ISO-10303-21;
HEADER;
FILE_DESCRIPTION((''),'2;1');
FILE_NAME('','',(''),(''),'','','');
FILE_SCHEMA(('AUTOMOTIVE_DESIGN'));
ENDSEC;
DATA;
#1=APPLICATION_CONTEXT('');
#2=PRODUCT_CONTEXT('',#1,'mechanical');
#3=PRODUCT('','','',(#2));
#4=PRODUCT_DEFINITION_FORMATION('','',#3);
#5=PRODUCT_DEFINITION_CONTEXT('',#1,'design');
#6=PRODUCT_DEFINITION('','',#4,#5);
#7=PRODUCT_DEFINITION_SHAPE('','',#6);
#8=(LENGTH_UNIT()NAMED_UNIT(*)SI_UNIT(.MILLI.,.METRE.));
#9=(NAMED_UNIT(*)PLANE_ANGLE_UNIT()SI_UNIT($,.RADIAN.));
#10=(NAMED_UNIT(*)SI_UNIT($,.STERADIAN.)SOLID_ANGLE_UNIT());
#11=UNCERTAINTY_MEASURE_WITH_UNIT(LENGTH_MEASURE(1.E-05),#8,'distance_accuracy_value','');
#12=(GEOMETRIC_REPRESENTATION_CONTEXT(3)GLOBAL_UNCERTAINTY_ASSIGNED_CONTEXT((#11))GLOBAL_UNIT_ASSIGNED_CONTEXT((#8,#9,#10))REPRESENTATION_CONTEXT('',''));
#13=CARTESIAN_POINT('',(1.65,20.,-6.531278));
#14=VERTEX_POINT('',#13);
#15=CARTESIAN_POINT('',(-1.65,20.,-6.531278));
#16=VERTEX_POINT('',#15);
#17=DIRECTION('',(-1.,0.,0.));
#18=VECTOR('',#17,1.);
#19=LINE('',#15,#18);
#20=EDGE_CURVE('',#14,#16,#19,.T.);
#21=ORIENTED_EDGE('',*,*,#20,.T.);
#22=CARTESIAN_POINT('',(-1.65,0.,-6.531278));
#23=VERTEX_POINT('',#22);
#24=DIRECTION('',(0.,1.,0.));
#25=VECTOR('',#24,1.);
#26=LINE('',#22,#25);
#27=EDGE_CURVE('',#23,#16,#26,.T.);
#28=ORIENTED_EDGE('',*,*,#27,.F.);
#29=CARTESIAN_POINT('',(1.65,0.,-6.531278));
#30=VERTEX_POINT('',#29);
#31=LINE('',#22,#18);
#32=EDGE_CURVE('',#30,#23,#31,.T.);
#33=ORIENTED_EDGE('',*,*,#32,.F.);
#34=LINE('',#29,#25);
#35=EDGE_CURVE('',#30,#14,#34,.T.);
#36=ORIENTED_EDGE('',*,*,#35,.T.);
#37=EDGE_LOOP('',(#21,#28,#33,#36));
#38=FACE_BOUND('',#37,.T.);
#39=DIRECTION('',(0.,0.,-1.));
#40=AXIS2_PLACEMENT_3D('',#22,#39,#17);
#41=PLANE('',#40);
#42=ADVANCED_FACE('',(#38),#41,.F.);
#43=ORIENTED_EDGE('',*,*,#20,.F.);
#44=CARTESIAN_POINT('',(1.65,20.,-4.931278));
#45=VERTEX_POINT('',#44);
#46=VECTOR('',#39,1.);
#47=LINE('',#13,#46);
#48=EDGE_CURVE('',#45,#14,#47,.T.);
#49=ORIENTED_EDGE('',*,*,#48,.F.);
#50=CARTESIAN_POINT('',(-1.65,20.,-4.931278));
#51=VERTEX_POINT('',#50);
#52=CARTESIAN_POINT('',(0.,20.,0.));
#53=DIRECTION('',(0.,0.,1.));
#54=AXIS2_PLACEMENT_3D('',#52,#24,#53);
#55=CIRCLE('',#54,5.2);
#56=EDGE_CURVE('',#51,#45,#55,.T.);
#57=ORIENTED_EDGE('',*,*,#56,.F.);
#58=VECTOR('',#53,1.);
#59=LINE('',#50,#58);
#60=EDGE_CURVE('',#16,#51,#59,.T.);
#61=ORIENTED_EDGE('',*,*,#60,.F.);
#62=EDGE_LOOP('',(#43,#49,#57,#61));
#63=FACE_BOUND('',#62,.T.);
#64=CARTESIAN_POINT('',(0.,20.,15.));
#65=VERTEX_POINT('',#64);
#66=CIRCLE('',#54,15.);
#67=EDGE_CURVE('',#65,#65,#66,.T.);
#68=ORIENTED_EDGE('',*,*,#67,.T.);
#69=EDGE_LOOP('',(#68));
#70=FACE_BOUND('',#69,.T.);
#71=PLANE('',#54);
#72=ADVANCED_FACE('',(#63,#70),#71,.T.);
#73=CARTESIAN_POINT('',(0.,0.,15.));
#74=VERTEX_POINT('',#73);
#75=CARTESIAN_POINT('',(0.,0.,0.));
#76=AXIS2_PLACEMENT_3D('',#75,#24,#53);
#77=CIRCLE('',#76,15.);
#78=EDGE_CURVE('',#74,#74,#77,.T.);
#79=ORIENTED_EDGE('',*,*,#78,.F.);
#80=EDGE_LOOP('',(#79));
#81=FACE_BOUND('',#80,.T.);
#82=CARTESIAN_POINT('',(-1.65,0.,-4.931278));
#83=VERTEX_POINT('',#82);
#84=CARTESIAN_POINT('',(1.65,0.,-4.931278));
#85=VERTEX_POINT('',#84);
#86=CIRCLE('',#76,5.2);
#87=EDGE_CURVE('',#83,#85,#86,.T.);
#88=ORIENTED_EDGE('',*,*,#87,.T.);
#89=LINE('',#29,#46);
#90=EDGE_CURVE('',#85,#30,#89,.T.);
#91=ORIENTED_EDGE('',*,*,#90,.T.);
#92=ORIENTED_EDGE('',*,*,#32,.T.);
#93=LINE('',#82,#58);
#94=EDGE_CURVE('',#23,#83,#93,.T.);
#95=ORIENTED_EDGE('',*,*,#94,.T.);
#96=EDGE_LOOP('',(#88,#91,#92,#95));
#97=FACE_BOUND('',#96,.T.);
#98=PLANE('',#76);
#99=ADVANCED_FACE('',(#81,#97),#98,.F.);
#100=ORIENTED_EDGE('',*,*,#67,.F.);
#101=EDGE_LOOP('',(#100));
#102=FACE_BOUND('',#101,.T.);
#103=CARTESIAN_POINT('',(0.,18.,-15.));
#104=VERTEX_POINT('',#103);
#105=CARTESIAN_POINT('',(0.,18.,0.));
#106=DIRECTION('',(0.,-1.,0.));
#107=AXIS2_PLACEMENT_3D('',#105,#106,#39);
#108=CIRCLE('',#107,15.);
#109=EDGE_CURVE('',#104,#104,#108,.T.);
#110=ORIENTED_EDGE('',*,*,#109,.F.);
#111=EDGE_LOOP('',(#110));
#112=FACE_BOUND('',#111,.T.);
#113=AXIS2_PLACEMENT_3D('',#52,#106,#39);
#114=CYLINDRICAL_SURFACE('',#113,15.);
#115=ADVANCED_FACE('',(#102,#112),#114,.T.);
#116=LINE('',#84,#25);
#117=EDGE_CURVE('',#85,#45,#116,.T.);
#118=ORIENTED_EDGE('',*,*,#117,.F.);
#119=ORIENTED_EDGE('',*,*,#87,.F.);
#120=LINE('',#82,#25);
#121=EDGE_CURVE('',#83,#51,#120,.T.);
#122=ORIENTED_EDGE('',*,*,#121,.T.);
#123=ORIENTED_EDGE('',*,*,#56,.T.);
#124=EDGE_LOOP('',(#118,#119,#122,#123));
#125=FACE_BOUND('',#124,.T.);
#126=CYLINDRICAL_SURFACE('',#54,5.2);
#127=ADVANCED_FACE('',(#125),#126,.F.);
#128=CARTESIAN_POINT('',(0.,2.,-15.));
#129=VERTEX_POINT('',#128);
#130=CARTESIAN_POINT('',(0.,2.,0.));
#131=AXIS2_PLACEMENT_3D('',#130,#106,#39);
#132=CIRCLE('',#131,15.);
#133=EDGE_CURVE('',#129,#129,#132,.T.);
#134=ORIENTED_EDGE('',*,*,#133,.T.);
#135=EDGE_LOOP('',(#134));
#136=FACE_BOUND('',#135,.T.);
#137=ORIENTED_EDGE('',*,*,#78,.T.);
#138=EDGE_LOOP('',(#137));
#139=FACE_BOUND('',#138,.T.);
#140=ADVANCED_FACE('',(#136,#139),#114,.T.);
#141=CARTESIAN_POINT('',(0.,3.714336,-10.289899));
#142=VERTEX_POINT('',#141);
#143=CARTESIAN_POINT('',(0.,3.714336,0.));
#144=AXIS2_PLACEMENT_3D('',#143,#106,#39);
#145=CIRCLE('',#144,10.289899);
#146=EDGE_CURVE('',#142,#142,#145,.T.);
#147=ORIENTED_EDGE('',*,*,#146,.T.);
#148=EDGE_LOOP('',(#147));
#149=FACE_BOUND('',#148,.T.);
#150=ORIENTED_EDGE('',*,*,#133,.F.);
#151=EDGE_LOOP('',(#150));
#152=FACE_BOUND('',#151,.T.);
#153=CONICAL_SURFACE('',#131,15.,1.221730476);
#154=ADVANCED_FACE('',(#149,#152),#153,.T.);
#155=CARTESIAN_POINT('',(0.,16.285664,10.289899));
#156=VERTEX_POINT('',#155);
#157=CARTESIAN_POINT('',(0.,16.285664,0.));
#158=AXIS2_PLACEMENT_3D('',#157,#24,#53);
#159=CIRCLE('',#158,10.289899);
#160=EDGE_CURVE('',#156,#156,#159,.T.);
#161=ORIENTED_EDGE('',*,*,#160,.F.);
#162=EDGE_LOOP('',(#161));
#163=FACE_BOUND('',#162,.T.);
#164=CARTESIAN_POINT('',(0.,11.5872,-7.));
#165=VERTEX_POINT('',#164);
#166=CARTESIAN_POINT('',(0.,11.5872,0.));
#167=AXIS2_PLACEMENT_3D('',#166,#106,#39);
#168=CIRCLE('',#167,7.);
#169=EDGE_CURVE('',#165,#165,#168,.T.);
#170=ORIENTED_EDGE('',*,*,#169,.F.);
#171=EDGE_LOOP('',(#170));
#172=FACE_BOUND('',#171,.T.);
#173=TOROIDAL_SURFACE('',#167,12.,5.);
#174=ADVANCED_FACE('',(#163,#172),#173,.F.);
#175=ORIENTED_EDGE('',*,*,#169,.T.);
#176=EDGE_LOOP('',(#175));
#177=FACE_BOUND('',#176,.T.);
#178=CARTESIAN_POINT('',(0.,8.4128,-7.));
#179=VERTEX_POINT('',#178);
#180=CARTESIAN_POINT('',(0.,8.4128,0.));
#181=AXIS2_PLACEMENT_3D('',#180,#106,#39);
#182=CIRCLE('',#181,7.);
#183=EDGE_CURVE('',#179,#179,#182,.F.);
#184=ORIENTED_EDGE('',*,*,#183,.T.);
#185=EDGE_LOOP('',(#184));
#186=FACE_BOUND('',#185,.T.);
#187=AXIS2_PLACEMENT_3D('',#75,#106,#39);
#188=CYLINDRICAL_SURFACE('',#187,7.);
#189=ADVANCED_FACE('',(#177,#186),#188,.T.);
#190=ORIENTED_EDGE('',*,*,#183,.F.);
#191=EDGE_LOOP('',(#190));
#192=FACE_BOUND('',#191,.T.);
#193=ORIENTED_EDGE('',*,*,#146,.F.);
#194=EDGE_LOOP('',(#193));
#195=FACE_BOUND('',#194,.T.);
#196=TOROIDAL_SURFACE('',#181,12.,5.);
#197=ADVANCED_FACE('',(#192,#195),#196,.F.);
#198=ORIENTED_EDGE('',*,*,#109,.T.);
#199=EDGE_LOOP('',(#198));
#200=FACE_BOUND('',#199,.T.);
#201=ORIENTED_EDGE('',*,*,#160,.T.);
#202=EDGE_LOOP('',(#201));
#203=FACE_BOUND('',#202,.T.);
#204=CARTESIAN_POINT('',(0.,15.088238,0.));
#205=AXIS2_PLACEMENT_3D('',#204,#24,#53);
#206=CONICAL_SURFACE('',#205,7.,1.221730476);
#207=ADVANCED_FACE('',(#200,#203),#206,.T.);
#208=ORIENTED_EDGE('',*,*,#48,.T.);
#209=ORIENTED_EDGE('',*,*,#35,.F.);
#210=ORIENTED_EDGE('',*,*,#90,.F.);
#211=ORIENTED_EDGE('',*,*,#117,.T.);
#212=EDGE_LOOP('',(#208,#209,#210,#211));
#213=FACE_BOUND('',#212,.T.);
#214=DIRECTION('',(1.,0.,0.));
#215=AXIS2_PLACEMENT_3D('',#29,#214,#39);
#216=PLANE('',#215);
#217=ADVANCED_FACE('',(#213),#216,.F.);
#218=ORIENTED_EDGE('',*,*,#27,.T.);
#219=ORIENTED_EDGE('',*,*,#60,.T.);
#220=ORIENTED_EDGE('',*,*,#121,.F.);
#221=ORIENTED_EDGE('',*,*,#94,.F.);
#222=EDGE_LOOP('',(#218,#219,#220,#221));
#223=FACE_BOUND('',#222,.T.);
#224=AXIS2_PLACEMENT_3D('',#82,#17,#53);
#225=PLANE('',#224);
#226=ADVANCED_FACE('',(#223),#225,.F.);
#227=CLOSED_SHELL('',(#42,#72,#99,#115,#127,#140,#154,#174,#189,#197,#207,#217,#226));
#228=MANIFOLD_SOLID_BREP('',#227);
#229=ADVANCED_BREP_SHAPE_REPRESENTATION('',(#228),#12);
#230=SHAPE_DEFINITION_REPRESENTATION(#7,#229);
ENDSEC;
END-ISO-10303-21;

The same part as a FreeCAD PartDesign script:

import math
import FreeCAD as App
import Part
import Sketcher
from FreeCAD import Vector
Q = App.Units.Quantity


def edges_at(feature, points):
    """Names of the edges that pass closest to the given points."""
    edges = feature.Shape.Edges
    near = lambda p: min(range(len(edges)), key=lambda i: edges[i].distToShape(Part.Vertex(*p))[0])
    return sorted({f"Edge{near(p) + 1}" for p in points})

doc = App.newDocument("Part")
body = doc.addObject("PartDesign::Body", "Body")

sketch1 = body.newObject("Sketcher::SketchObject", "Sketch")
sketch1.AttachmentSupport = (doc.getObject("XZ_Plane"), [""])
sketch1.MapMode = "FlatFace"
sketch1.addGeometry(Part.Circle(Vector(0, 0, 0), Vector(0, 0, 1), 15), False)
sketch1.addConstraint([
    Sketcher.Constraint("Coincident", 0, 3, -1, 1),
    Sketcher.Constraint("Diameter", 0, Q("30 mm")),
])
pad1 = body.newObject("PartDesign::Pad", "Pad")
pad1.Profile = sketch1
pad1.Length = 20
pad1.Reversed = True

sketch2 = body.newObject("Sketcher::SketchObject", "Sketch001")
sketch2.AttachmentSupport = (doc.getObject("XZ_Plane"), [""])
sketch2.MapMode = "FlatFace"
sketch2.AttachmentOffset = App.Placement(Vector(0, 0, -20), App.Rotation())
sketch2.addGeometry(Part.Circle(Vector(0, 0, 0), Vector(0, 0, 1), 5), False)
sketch2.addConstraint([
    Sketcher.Constraint("Coincident", 0, 3, -1, 1),
    Sketcher.Constraint("Diameter", 0, Q("10.4 mm")),
])
doc.recompute()
hole = body.newObject("PartDesign::Hole", "Hole")
hole.Profile = sketch2
hole.ThreadType = "None"
hole.Diameter = 10.4
hole.DepthType = "ThroughAll"
hole.Reversed = True

sketch3 = body.newObject("Sketcher::SketchObject", "Sketch002")
sketch3.AttachmentSupport = (doc.getObject("XZ_Plane"), [""])
sketch3.MapMode = "FlatFace"
sketch3.AttachmentOffset = App.Placement(Vector(0, 0, -20), App.Rotation())
sketch3.addGeometry([
    Part.LineSegment(Vector(-1.6, -6.5, 0), Vector(-1.6, -4.9, 0)),
    Part.ArcOfCircle(Part.Circle(Vector(0, 0.2, 0), Vector(0, 0, 1), 5.4), math.radians(-108), math.radians(-72)),
    Part.LineSegment(Vector(1.6, -4.9, 0), Vector(1.6, -6.5, 0)),
    Part.LineSegment(Vector(1.6, -6.5, 0), Vector(-1.6, -6.5, 0)),
], False)
sketch3.addConstraint([
    Sketcher.Constraint("Coincident", 0, 2, 1, 1),
    Sketcher.Constraint("Coincident", 1, 2, 2, 1),
    Sketcher.Constraint("Coincident", 2, 2, 3, 1),
    Sketcher.Constraint("Coincident", 3, 2, 0, 1),
    Sketcher.Constraint("Vertical", 0),
    Sketcher.Constraint("Vertical", 2),
    Sketcher.Constraint("Horizontal", 3),
    Sketcher.Constraint("Symmetric", 0, 2, 1, 2, -2),
    Sketcher.Constraint("Radius", 1, Q("5.4 mm")),
    Sketcher.Constraint("DistanceX", 3, 2, 3, 1, Q("3.3 mm")),
    Sketcher.Constraint("DistanceY", 0, 1, 0, 2, Q("1.6 mm")),
    Sketcher.Constraint("DistanceY", -1, 1, 1, 3, Q("0.210463 mm")),
])
pocket1 = body.newObject("PartDesign::Pocket", "Pocket")
pocket1.Profile = sketch3
pocket1.Type = "ThroughAll"
pocket1.Reversed = True

sketch4 = body.newObject("Sketcher::SketchObject", "Sketch003")
sketch4.AttachmentSupport = (doc.getObject("XY_Plane"), [""])
sketch4.MapMode = "FlatFace"
sketch4.addGeometry([
    Part.LineSegment(Vector(-15, 18, 0), Vector(-15, 2, 0)),
    Part.LineSegment(Vector(-15, 2, 0), Vector(-7, 5, 0)),
    Part.LineSegment(Vector(-7, 5, 0), Vector(-7, 15, 0)),
    Part.LineSegment(Vector(-7, 15, 0), Vector(-15, 18, 0)),
], False)
sketch4.addConstraint([
    Sketcher.Constraint("Coincident", 0, 2, 1, 1),
    Sketcher.Constraint("Coincident", 1, 2, 2, 1),
    Sketcher.Constraint("Coincident", 2, 2, 3, 1),
    Sketcher.Constraint("Coincident", 3, 2, 0, 1),
    Sketcher.Constraint("Vertical", 0),
    Sketcher.Constraint("Vertical", 2),
    Sketcher.Constraint("Equal", 1, 3),
    Sketcher.Constraint("DistanceY", 0, 2, 0, 1, Q("16 mm")),
    Sketcher.Constraint("Angle", 1, Q("20 deg")),
    Sketcher.Constraint("DistanceX", 0, 2, -1, 1, Q("15 mm")),
    Sketcher.Constraint("DistanceY", -1, 1, 0, 2, Q("2 mm")),
    Sketcher.Constraint("DistanceX", 1, 2, -1, 1, Q("7 mm")),
])
groove = body.newObject("PartDesign::Groove", "Groove")
groove.Profile = sketch4
groove.ReferenceAxis = (sketch4, ["V_Axis"])
groove.Angle = 360
doc.recompute()

fillet = body.newObject("PartDesign::Fillet", "Fillet")
fillet.Base = (groove, edges_at(groove, [(0, 15.088, 7), (0, 4.912, 7)]))
fillet.Radius = 5

doc.recompute()
